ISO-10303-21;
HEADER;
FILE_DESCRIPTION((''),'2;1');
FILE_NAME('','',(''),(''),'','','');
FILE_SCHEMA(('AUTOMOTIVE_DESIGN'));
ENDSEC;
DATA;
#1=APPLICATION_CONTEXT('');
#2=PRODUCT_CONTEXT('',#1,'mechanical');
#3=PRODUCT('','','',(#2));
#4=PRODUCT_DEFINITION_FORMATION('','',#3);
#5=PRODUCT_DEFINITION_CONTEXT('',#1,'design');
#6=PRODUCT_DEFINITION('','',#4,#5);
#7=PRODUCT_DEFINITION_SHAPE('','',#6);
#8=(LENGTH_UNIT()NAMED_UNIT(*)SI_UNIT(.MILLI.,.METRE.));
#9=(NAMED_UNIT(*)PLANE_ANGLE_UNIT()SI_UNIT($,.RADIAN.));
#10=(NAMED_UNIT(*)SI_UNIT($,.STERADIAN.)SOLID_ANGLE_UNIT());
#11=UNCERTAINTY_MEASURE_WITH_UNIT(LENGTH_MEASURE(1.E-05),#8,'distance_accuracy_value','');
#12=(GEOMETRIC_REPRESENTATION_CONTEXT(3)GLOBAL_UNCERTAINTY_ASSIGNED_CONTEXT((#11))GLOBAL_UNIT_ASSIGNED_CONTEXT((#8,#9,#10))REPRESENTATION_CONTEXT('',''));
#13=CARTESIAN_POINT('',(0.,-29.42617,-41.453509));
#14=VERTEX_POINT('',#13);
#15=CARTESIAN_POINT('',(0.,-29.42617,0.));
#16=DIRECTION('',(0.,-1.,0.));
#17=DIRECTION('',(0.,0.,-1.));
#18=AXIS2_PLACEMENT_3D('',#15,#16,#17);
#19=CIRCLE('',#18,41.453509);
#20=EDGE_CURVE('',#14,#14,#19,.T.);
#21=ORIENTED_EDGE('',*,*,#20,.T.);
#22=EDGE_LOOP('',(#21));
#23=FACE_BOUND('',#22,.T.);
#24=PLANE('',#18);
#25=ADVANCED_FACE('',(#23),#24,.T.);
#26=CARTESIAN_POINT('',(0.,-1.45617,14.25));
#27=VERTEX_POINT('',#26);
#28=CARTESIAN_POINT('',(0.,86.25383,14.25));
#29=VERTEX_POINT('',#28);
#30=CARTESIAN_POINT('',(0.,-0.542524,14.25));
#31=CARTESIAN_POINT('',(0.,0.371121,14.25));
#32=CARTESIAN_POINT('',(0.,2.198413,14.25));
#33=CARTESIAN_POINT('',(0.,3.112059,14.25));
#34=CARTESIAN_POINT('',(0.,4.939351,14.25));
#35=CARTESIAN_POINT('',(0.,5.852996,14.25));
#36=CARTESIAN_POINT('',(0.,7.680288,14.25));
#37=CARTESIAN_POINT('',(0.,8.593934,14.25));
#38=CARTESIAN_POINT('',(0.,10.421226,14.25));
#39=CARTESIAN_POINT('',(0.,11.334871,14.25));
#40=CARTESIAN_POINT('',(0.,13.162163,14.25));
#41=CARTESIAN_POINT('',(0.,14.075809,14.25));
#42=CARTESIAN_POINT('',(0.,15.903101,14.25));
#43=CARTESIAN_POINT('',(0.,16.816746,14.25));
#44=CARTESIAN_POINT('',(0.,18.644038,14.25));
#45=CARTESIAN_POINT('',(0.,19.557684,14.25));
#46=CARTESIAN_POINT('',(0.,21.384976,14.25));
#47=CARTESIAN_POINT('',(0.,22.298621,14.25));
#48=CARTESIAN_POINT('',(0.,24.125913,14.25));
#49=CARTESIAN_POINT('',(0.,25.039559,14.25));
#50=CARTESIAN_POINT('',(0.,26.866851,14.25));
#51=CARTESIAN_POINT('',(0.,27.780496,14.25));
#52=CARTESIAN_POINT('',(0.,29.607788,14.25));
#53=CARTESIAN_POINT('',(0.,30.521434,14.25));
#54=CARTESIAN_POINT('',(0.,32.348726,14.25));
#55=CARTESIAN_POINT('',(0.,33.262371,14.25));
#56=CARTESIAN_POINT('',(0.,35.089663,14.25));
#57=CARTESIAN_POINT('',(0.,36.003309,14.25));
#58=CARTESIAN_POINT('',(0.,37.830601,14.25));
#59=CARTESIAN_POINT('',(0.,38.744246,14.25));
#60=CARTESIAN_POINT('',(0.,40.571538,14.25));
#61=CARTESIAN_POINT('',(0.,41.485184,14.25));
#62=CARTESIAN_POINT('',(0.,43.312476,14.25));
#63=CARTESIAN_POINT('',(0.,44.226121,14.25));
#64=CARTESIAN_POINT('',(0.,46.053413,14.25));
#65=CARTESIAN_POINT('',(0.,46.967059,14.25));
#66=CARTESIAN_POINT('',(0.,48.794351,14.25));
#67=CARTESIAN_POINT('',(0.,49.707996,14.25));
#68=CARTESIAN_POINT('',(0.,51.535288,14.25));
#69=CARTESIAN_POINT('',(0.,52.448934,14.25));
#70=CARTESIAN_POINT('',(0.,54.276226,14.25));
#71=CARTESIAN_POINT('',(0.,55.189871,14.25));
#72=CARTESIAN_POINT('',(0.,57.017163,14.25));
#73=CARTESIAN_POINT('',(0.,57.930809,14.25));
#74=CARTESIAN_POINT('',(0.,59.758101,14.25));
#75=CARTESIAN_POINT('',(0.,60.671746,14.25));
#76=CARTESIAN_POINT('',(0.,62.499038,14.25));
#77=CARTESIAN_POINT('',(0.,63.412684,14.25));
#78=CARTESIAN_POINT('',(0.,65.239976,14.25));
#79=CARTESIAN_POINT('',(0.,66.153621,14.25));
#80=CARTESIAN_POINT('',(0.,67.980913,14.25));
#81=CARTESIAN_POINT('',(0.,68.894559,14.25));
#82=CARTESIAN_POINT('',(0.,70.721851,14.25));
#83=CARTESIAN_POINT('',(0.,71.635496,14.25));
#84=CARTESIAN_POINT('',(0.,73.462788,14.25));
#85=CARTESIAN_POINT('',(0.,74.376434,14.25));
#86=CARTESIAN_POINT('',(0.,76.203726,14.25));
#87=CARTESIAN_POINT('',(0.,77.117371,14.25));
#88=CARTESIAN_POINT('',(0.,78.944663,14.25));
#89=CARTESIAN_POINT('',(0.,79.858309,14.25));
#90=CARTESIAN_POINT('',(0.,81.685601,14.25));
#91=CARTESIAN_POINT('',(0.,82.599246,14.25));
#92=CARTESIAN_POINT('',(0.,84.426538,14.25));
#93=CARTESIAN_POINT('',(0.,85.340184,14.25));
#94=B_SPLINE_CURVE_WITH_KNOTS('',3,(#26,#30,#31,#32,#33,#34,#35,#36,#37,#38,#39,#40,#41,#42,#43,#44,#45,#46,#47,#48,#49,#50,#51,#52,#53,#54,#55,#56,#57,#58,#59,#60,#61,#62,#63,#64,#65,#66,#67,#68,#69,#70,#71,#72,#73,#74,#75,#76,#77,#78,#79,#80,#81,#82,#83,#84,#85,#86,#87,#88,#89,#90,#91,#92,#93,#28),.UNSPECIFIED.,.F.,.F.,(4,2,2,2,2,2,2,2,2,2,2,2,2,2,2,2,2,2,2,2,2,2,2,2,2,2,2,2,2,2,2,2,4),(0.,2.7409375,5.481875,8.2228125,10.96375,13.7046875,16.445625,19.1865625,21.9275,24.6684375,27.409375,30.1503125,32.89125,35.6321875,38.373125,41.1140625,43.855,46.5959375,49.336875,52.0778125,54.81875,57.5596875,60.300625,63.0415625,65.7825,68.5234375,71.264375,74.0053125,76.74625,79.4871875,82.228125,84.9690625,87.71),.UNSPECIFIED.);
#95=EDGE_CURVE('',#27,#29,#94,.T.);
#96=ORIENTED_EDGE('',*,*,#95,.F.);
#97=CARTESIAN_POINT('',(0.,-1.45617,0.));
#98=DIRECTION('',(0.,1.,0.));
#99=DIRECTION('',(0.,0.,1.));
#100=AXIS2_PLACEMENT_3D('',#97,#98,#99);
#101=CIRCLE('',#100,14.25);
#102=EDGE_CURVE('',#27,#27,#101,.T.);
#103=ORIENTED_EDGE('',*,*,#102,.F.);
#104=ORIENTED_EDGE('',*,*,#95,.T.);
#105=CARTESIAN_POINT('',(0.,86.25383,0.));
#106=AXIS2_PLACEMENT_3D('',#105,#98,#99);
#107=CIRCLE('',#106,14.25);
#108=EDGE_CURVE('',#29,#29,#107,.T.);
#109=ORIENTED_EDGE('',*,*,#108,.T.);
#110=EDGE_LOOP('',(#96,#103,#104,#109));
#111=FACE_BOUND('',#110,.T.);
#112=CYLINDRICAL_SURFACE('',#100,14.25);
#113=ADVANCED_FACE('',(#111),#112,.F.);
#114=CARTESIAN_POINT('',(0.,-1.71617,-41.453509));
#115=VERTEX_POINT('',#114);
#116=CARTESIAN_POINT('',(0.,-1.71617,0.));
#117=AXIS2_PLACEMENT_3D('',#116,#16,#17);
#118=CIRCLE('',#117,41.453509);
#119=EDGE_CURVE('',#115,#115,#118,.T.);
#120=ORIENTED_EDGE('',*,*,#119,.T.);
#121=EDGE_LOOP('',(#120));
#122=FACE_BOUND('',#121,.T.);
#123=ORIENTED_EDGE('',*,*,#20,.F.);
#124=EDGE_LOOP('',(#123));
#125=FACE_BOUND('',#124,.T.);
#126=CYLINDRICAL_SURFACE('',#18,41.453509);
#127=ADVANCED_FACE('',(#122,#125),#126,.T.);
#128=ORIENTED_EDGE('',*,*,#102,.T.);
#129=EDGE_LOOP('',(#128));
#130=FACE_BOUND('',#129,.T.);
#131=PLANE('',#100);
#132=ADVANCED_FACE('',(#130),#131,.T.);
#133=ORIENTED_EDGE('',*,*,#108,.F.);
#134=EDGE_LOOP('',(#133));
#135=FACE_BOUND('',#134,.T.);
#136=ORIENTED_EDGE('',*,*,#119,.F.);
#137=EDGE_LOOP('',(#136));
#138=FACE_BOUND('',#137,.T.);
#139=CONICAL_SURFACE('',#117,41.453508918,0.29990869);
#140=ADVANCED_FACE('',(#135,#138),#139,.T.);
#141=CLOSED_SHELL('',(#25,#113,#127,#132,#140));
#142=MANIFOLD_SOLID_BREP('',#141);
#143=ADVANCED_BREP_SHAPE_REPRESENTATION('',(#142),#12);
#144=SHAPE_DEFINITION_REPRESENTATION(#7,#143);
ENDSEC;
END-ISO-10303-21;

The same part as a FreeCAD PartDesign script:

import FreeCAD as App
import Part
import Sketcher

doc = App.newDocument("Part")
body = doc.addObject("PartDesign::Body", "Body")

sketch1 = body.newObject("Sketcher::SketchObject", "Sketch")
sketch1.AttachmentSupport = (doc.getObject("XY_Plane"), [""])
sketch1.MapMode = "FlatFace"
sketch1.addGeometry([
    Part.LineSegment(App.Vector(0, -29, 0), App.Vector(41, -29, 0)),
    Part.LineSegment(App.Vector(41, -29, 0), App.Vector(41, -2, 0)),
    Part.LineSegment(App.Vector(41, -2, 0), App.Vector(14, 86, 0)),
    Part.LineSegment(App.Vector(14, 86, 0), App.Vector(0, 86, 0)),
    Part.LineSegment(App.Vector(0, 86, 0), App.Vector(0, -29, 0)),
], False)
sketch1.addConstraint([
    Sketcher.Constraint("Coincident", 0, 2, 1, 1),
    Sketcher.Constraint("Coincident", 1, 2, 2, 1),
    Sketcher.Constraint("Coincident", 2, 2, 3, 1),
    Sketcher.Constraint("Coincident", 3, 2, 4, 1),
    Sketcher.Constraint("Coincident", 4, 2, 0, 1),
    Sketcher.Constraint("Horizontal", 0),
    Sketcher.Constraint("Vertical", 1),
    Sketcher.Constraint("Horizontal", 3),
    Sketcher.Constraint("Vertical", 4),
    Sketcher.Constraint("PointOnObject", 3, 2, -2),
    Sketcher.Constraint("DistanceX", 3, 2, 3, 1, 14.25),
    Sketcher.Constraint("DistanceY", 1, 1, 1, 2, 27.71),
    Sketcher.Constraint("DistanceY", 4, 2, 4, 1, 115.68),
    Sketcher.Constraint("DistanceX", 0, 1, 0, 2, 41.453509),
    Sketcher.Constraint("DistanceY", 0, 2, -1, 1, 29.42617),
])
revolution = body.newObject("PartDesign::Revolution", "Revolution")
revolution.Profile = sketch1
revolution.ReferenceAxis = (sketch1, ["V_Axis"])
revolution.Angle = 360

sketch2 = body.newObject("Sketcher::SketchObject", "Sketch001")
sketch2.AttachmentSupport = (doc.getObject("XZ_Plane"), [""])
sketch2.MapMode = "FlatFace"
sketch2.AttachmentOffset = App.Placement(App.Vector(0, 0, -86.25383), App.Rotation())
sketch2.addGeometry(Part.Circle(App.Vector(0, 0, 0), App.Vector(0, 0, 1), 14), False)
sketch2.addConstraint([
    Sketcher.Constraint("Coincident", 0, 3, -1, 1),
    Sketcher.Constraint("Diameter", 0, 28.5),
])
pocket1 = body.newObject("PartDesign::Pocket", "Pocket")
pocket1.Profile = sketch2
pocket1.Length = 87.71
pocket1.Reversed = True

doc.recompute()
